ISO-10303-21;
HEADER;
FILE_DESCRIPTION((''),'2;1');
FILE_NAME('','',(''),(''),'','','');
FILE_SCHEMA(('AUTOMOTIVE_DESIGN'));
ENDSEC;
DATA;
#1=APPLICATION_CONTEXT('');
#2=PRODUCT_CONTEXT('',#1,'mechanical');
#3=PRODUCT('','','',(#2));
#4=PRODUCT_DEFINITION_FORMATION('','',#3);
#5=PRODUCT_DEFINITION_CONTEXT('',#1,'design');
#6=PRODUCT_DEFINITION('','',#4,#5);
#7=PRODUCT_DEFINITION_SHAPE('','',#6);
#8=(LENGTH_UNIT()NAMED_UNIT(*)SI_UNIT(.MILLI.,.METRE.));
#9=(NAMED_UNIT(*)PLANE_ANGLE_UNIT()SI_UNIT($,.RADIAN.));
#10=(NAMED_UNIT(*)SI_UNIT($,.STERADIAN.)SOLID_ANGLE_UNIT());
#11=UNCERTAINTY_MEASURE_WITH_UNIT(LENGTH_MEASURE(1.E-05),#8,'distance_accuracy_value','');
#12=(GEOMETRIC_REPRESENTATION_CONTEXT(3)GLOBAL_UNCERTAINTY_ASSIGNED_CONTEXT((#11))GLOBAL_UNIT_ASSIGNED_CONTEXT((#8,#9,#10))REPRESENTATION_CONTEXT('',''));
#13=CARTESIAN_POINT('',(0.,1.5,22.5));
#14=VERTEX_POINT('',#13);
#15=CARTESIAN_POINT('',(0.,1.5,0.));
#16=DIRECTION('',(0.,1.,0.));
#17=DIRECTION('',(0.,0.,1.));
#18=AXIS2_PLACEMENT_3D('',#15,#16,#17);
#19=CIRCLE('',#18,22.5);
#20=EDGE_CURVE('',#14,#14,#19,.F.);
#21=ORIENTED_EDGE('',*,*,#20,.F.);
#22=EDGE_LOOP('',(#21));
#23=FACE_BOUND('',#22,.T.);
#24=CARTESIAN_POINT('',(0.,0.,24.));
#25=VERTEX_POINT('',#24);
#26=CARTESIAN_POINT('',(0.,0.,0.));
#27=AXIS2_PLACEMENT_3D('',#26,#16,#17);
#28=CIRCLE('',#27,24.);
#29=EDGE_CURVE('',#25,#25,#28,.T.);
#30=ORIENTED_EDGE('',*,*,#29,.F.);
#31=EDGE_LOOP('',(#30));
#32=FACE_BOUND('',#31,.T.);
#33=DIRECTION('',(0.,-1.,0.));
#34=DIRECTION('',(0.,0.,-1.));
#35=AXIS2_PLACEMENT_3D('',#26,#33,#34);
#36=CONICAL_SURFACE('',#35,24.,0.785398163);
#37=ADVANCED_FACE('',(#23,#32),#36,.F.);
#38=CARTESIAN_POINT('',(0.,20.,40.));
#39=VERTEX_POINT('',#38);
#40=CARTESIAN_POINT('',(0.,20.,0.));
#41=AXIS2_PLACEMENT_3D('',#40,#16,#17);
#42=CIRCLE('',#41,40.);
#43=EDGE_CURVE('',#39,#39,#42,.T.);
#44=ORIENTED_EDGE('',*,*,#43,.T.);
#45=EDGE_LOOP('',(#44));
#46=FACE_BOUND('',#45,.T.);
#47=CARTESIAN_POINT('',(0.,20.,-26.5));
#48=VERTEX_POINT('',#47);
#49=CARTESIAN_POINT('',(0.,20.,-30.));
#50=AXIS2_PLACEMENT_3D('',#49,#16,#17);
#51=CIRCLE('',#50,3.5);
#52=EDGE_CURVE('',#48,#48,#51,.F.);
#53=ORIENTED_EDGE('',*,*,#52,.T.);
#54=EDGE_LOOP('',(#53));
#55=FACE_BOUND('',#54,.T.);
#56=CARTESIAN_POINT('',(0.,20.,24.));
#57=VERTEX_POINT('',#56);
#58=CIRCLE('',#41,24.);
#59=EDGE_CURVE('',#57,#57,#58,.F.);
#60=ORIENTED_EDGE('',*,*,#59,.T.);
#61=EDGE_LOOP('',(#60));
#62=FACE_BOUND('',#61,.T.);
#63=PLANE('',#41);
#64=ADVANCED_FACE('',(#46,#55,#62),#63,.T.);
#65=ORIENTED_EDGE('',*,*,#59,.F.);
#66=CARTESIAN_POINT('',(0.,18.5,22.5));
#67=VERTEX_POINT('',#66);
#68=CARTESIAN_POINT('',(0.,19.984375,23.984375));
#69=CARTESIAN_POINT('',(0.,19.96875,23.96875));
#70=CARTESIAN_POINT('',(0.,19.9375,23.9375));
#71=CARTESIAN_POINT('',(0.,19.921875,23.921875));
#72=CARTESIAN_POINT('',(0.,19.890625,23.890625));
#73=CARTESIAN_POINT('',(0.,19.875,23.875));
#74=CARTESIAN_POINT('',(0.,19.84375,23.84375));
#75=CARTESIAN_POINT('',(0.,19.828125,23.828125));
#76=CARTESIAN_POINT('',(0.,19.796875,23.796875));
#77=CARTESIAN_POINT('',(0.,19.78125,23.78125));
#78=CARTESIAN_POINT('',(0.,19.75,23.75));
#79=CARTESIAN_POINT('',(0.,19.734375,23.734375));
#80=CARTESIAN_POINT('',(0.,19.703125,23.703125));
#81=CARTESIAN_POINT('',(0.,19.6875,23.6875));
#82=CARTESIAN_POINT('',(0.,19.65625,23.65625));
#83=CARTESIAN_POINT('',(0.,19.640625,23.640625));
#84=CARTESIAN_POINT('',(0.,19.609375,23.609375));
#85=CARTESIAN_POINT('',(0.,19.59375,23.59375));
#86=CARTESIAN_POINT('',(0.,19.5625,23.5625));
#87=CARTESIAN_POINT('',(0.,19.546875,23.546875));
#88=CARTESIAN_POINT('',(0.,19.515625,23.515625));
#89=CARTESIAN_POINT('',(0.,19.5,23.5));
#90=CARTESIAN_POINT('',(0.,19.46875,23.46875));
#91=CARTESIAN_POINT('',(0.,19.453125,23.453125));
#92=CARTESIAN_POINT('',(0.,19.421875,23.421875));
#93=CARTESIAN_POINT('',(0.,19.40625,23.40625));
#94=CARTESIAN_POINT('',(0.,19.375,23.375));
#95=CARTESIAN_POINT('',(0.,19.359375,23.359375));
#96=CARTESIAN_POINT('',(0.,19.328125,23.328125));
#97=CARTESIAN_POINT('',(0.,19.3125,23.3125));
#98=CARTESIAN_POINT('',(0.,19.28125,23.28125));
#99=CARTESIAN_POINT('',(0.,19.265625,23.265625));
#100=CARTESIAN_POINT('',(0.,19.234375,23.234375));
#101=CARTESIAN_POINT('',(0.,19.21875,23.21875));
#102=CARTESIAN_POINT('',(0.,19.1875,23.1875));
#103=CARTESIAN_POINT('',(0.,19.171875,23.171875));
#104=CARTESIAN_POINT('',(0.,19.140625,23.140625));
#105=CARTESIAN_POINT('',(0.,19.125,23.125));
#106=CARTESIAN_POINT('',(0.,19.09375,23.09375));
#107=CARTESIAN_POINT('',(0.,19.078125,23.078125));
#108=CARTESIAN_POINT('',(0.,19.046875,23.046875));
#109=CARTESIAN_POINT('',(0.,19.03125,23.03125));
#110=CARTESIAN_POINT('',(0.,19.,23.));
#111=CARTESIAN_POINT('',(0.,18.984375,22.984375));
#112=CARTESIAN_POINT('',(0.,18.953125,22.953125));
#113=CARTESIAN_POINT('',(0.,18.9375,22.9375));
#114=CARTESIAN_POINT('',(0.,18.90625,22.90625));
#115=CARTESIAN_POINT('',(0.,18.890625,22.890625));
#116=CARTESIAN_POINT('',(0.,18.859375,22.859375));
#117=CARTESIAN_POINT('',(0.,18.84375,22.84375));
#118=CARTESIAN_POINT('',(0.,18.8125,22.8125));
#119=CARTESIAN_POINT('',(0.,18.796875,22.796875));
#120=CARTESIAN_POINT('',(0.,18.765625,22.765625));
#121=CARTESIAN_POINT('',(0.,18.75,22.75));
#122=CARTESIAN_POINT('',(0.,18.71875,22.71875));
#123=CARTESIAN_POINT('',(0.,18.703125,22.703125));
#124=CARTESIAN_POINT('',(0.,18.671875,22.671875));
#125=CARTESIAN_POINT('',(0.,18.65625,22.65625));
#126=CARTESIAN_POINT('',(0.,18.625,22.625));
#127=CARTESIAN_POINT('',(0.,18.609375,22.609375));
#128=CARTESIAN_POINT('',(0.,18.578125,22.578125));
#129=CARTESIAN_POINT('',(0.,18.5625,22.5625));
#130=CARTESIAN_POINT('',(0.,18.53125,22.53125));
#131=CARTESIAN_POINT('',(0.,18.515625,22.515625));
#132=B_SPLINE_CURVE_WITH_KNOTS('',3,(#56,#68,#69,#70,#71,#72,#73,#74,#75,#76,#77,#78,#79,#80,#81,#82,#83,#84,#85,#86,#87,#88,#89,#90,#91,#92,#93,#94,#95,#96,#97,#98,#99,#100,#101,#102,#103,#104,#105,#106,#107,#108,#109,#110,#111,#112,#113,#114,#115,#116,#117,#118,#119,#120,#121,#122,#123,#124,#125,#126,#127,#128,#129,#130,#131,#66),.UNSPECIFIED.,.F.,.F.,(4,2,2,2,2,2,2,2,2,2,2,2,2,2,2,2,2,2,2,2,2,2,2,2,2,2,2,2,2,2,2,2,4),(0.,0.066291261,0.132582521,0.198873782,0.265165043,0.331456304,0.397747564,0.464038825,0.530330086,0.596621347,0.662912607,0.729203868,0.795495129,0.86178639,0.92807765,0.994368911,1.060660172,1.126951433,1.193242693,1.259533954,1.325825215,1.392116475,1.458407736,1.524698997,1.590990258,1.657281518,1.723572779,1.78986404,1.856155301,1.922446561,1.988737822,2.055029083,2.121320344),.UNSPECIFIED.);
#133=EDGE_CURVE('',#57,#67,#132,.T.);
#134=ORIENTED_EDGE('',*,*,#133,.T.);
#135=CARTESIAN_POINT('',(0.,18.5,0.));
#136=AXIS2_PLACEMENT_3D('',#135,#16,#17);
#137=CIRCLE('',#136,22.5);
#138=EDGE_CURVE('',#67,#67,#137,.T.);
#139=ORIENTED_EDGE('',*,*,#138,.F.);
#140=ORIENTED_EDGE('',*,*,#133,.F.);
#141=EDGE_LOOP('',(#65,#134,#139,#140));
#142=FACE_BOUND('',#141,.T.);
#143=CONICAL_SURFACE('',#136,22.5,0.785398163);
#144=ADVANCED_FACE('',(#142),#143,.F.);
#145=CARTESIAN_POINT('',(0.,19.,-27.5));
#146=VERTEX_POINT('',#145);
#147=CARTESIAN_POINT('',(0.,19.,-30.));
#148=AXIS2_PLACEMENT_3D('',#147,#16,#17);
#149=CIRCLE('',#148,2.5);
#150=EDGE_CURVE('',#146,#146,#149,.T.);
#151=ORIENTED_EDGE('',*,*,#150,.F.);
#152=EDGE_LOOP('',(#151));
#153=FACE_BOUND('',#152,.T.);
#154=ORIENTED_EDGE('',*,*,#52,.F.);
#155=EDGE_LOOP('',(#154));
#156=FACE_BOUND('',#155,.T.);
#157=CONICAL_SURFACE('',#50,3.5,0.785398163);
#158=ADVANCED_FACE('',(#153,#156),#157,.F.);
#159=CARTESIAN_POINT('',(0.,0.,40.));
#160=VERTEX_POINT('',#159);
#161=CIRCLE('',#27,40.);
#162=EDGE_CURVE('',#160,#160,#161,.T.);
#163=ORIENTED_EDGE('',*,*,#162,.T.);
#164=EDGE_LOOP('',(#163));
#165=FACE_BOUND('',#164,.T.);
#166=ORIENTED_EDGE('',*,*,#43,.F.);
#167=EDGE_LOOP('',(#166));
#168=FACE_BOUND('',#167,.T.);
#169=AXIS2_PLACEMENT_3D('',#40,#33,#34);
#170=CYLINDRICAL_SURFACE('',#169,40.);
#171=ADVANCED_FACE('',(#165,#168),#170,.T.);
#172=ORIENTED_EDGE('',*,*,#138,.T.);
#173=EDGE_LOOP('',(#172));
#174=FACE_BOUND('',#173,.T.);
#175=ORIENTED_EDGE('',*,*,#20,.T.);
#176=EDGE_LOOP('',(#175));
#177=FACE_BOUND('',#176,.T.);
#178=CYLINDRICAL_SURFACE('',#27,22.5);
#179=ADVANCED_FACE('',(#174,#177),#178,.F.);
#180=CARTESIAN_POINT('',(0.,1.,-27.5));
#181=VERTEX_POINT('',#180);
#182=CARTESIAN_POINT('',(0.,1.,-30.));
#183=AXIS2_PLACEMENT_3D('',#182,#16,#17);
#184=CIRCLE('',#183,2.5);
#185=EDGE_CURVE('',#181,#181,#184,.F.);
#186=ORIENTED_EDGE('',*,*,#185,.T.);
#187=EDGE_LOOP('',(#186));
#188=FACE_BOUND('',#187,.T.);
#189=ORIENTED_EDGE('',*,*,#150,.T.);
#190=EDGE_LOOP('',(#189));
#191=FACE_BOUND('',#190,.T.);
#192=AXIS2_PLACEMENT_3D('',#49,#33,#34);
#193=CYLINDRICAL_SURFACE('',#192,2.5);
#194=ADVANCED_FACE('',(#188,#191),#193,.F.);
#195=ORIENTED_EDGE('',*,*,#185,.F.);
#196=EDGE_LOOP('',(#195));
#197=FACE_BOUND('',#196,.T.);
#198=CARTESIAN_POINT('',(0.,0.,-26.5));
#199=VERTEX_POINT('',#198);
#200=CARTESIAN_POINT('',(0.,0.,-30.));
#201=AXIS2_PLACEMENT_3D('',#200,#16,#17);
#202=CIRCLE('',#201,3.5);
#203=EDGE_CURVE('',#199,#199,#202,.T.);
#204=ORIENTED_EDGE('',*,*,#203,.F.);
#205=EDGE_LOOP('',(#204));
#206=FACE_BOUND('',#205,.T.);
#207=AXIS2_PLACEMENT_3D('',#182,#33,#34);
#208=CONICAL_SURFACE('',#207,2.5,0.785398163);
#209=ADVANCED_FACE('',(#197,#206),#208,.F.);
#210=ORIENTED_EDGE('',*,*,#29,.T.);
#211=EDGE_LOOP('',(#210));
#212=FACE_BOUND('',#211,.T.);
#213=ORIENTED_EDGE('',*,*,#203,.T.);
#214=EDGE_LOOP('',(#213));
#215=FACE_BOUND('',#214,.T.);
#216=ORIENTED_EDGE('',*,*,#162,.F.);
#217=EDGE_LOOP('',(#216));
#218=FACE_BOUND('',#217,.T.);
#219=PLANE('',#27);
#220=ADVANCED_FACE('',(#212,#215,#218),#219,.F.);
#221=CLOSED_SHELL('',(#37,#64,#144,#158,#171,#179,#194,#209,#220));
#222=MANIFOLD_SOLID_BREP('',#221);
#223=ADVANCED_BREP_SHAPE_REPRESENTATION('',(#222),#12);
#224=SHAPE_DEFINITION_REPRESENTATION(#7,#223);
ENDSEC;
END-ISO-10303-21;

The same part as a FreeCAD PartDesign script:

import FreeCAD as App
import Part
import Sketcher


def edges_at(feature, points):
    """Names of the edges that pass closest to the given points."""
    edges = feature.Shape.Edges
    near = lambda p: min(range(len(edges)), key=lambda i: edges[i].distToShape(Part.Vertex(*p))[0])
    return sorted({f"Edge{near(p) + 1}" for p in points})

doc = App.newDocument("Part")
params = doc.addObject("Spreadsheet::Sheet", "Params")
for row, (alias, value) in enumerate([
    ("sketch1_diameter", "80 mm"),
    ("pad1_length", "20 mm"),
    ("sketch2_diameter", "45 mm"),
    ("chamfer_size", "1.5 mm"),
    ("sketch3_diameter", "5 mm"),
    ("chamfer2_size", "1 mm"),
], start=1):
    params.set(f"A{row}", alias)
    params.set(f"B{row}", "=" + value)
    params.setAlias(f"B{row}", alias)

body = doc.addObject("PartDesign::Body", "Body")

sketch1 = body.newObject("Sketcher::SketchObject", "Sketch")
sketch1.AttachmentSupport = (doc.getObject("XZ_Plane"), [""])
sketch1.MapMode = "FlatFace"
sketch1.addGeometry(Part.Circle(App.Vector(0, 0, 0), App.Vector(0, 0, 1), 40), False)
sketch1.addConstraint([
    Sketcher.Constraint("Coincident", 0, 3, -1, 1),
    Sketcher.Constraint("Diameter", 0, 80.0),
])
sketch1.setExpression("Constraints[1]", "Params.sketch1_diameter")
pad1 = body.newObject("PartDesign::Pad", "Pad")
pad1.Profile = sketch1
pad1.setExpression("Length", "Params.pad1_length")
pad1.Reversed = True

sketch2 = body.newObject("Sketcher::SketchObject", "Sketch001")
sketch2.AttachmentSupport = (doc.getObject("XZ_Plane"), [""])
sketch2.MapMode = "FlatFace"
sketch2.AttachmentOffset = App.Placement(App.Vector(0, 0, -20), App.Rotation())
sketch2.addGeometry(Part.Circle(App.Vector(0, 0, 0), App.Vector(0, 0, 1), 22), False)
sketch2.addConstraint([
    Sketcher.Constraint("Coincident", 0, 3, -1, 1),
    Sketcher.Constraint("Diameter", 0, 45.0),
])
sketch2.setExpression("Constraints[1]", "Params.sketch2_diameter")
pocket1 = body.newObject("PartDesign::Pocket", "Pocket")
pocket1.Profile = sketch2
pocket1.Type = "ThroughAll"
pocket1.Reversed = True
doc.recompute()

chamfer = body.newObject("PartDesign::Chamfer", "Chamfer")
chamfer.Base = (pocket1, edges_at(pocket1, [(0, 0, -22.5), (0, 20, -22.5)]))
chamfer.setExpression("Size", "Params.chamfer_size")

sketch3 = body.newObject("Sketcher::SketchObject", "Sketch002")
sketch3.AttachmentSupport = (doc.getObject("XZ_Plane"), [""])
sketch3.MapMode = "FlatFace"
sketch3.addGeometry(Part.Circle(App.Vector(0, -30, 0), App.Vector(0, 0, 1), 2.5), False)
sketch3.addConstraint([
    Sketcher.Constraint("PointOnObject", 0, 3, -2),
    Sketcher.Constraint("Diameter", 0, 5.0),
    Sketcher.Constraint("DistanceY", 0, 3, -1, 1, 30.0),
])
sketch3.setExpression("Constraints[1]", "Params.sketch3_diameter")
pocket2 = body.newObject("PartDesign::Pocket", "Pocket001")
pocket2.Profile = sketch3
pocket2.Type = "ThroughAll"
doc.recompute()

chamfer2 = body.newObject("PartDesign::Chamfer", "Chamfer001")
chamfer2.Base = (pocket2, edges_at(pocket2, [(0, 20, -27.5), (0, 0, -27.5)]))
chamfer2.setExpression("Size", "Params.chamfer2_size")

doc.recompute()
